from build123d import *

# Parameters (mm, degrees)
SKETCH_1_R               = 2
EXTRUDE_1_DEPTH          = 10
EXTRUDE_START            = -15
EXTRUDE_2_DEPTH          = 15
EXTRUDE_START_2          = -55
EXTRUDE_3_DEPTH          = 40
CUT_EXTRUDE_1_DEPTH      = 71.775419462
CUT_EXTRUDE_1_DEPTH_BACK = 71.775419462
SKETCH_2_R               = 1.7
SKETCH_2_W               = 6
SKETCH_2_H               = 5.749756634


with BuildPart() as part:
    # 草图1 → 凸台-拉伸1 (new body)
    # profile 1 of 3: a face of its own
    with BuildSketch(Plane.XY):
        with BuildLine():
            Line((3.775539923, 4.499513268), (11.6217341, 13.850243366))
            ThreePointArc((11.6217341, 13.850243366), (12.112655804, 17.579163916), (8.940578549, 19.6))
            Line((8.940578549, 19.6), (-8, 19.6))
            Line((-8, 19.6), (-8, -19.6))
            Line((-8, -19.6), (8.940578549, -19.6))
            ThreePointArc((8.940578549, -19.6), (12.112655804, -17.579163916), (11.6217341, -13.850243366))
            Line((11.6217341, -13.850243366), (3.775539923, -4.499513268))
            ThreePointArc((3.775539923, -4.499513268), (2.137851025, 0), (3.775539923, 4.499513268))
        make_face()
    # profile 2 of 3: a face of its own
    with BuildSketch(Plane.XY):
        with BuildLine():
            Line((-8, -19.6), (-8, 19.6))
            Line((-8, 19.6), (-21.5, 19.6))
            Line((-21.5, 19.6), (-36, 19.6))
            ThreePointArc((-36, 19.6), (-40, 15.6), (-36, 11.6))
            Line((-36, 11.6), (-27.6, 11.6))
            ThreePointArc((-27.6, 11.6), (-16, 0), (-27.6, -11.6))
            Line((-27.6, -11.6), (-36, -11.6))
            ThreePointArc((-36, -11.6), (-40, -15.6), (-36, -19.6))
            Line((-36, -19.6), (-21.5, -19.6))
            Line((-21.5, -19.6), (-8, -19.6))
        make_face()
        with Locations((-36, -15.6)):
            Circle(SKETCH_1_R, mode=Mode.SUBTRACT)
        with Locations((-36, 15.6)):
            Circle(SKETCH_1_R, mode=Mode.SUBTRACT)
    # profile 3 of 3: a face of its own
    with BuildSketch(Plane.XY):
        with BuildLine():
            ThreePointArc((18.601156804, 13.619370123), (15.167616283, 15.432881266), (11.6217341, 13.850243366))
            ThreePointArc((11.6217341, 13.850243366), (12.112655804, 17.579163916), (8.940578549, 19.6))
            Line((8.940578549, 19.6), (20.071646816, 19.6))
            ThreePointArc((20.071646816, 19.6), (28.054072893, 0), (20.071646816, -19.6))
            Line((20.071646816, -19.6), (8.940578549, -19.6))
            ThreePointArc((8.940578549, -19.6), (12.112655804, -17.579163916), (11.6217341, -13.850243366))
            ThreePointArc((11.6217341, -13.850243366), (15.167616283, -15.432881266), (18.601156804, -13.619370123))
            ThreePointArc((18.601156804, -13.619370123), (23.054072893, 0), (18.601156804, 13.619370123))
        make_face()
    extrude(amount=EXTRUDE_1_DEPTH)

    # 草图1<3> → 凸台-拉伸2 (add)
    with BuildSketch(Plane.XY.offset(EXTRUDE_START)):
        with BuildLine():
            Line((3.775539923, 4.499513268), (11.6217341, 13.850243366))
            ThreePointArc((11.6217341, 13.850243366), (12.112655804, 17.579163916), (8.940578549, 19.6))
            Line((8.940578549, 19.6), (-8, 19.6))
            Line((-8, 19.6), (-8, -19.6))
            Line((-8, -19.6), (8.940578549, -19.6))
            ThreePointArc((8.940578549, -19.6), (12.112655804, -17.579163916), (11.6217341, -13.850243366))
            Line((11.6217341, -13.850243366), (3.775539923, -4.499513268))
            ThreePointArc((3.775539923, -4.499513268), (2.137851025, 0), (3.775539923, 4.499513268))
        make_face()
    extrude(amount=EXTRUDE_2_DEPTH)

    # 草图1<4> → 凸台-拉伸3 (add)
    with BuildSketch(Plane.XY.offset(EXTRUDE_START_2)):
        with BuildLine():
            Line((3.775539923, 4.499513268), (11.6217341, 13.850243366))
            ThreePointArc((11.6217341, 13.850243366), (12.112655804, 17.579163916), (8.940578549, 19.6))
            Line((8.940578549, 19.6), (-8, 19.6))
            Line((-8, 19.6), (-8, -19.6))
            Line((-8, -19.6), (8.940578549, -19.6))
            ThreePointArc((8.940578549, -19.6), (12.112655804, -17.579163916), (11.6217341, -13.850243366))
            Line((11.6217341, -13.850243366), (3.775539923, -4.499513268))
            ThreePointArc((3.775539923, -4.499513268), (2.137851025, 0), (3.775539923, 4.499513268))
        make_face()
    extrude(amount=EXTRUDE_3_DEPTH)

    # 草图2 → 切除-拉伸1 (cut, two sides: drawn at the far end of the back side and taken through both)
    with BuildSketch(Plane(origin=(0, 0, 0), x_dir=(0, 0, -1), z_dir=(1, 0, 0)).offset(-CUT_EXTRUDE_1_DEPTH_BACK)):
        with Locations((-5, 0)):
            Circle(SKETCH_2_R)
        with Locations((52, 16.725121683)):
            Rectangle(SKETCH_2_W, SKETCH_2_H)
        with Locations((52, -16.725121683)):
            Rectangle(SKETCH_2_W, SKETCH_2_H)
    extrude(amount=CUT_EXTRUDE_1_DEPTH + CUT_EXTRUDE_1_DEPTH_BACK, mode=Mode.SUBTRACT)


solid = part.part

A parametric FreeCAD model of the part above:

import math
import FreeCAD as App
import Part
import Sketcher

V = App.Vector
Q = App.Units.Quantity

doc = App.newDocument("Part")
body = doc.addObject("PartDesign::Body", "Body")

sketch1 = body.newObject("Sketcher::SketchObject", "Sketch")
sketch1.AttachmentSupport = (doc.getObject("XY_Plane"), [""])
sketch1.MapMode = "FlatFace"
sketch1.addGeometry(Part.ArcOfCircle(Part.Circle(V(-36, 15.6, 0), V(0, 0, 1), 4), math.radians(90), math.radians(270)), False)
sketch1.addGeometry(Part.LineSegment(V(-36, 11.6, 0), V(-27.6, 11.6, 0)), False)
sketch1.addGeometry(Part.ArcOfCircle(Part.Circle(V(-27.6, 0, 0), V(0, 0, 1), 11.6), math.radians(-90), math.radians(90)), False)
sketch1.addGeometry(Part.LineSegment(V(-27.6, -11.6, 0), V(-36, -11.6, 0)), False)
sketch1.addGeometry(Part.ArcOfCircle(Part.Circle(V(-36, -15.6, 0), V(0, 0, 1), 4), math.radians(90), math.radians(270)), False)
sketch1.addGeometry(Part.LineSegment(V(-36, -19.6, 0), V(20.1, -19.6, 0)), False)
sketch1.addGeometry(Part.ArcOfCircle(Part.Circle(V(0, 0, 0), V(0, 0, 1), 28.1), math.radians(-44), math.radians(44)), False)
sketch1.addGeometry(Part.LineSegment(V(20.1, 19.6, 0), V(-36, 19.6, 0)), False)
sketch1.addGeometry(Part.LineSegment(V(3.8, 4.5, 0), V(11.6, 13.9, 0)), False)
sketch1.addGeometry(Part.ArcOfCircle(Part.Circle(V(15, 11, 0), V(0, 0, 1), 4.4), math.radians(36), math.radians(140)), False)
sketch1.addGeometry(Part.ArcOfCircle(Part.Circle(V(0, 0, 0), V(0, 0, 1), 23.1), math.radians(-36), math.radians(36)), False)
sketch1.addGeometry(Part.ArcOfCircle(Part.Circle(V(15, -11, 0), V(0, 0, 1), 4.4), math.radians(-140), math.radians(-36)), False)
sketch1.addGeometry(Part.LineSegment(V(11.6, -13.9, 0), V(3.8, -4.5, 0)), False)
sketch1.addGeometry(Part.ArcOfCircle(Part.Circle(V(9.1, 0, 0), V(0, 0, 1), 7), math.radians(140), math.radians(220)), False)
sketch1.addGeometry(Part.Circle(V(-36, 15.6, 0), V(0, 0, 1), 2), False)
sketch1.addGeometry(Part.Circle(V(-36, -15.6, 0), V(0, 0, 1), 2), False)
sketch1.addConstraint(Sketcher.Constraint("Tangent", 0, 2, 1, 1))
sketch1.addConstraint(Sketcher.Constraint("Tangent", 1, 2, 2, 2))
sketch1.addConstraint(Sketcher.Constraint("Tangent", 2, 1, 3, 1))
sketch1.addConstraint(Sketcher.Constraint("Tangent", 3, 2, 4, 1))
sketch1.addConstraint(Sketcher.Constraint("Tangent", 4, 2, 5, 1))
sketch1.addConstraint(Sketcher.Constraint("Coincident", 5, 2, 6, 1))
sketch1.addConstraint(Sketcher.Constraint("Coincident", 6, 2, 7, 1))
sketch1.addConstraint(Sketcher.Constraint("Tangent", 7, 2, 0, 1))
sketch1.addConstraint(Sketcher.Constraint("Tangent", 8, 2, 9, 2))
sketch1.addConstraint(Sketcher.Constraint("Tangent", 9, 1, 10, 2))
sketch1.addConstraint(Sketcher.Constraint("Tangent", 10, 1, 11, 2))
sketch1.addConstraint(Sketcher.Constraint("Tangent", 11, 1, 12, 1))
sketch1.addConstraint(Sketcher.Constraint("Tangent", 12, 2, 13, 2))
sketch1.addConstraint(Sketcher.Constraint("Tangent", 13, 1, 8, 1))
sketch1.addConstraint(Sketcher.Constraint("Horizontal", 1))
sketch1.addConstraint(Sketcher.Constraint("Horizontal", 3))
sketch1.addConstraint(Sketcher.Constraint("Horizontal", 5))
sketch1.addConstraint(Sketcher.Constraint("Horizontal", 7))
sketch1.addConstraint(Sketcher.Constraint("Coincident", 6, 3, -1, 1))
sketch1.addConstraint(Sketcher.Constraint("Coincident", 10, 3, -1, 1))
sketch1.addConstraint(Sketcher.Constraint("Coincident", 14, 3, 0, 3))
sketch1.addConstraint(Sketcher.Constraint("Coincident", 15, 3, 4, 3))
sketch1.addConstraint(Sketcher.Constraint("Equal", 0, 4))
sketch1.addConstraint(Sketcher.Constraint("Equal", 9, 11))
sketch1.addConstraint(Sketcher.Constraint("Equal", 14, 15))
sketch1.addConstraint(Sketcher.Constraint("Symmetric", 0, 3, 4, 3, -1))
sketch1.addConstraint(Sketcher.Constraint("Symmetric", 8, 2, 11, 1, -1))
sketch1.addConstraint(Sketcher.Constraint("Diameter", 14, Q("4 mm")))
sketch1.addConstraint(Sketcher.Constraint("Radius", 0, Q("4 mm")))
sketch1.addConstraint(Sketcher.Constraint("Radius", 13, Q("7 mm")))
sketch1.addConstraint(Sketcher.Constraint("Radius", 2, Q("11.6 mm")))
sketch1.addConstraint(Sketcher.Constraint("Angle", 8, Q("50 deg")))
sketch1.addConstraint(Sketcher.Constraint("DistanceX", 1, 1, 1, 2, Q("8.4 mm")))
sketch1.addConstraint(Sketcher.Constraint("DistanceX", 0, 3, -1, 1, Q("36 mm")))
sketch1.addConstraint(Sketcher.Constraint("Radius", 6, Q("28.054073 mm")))
sketch1.addConstraint(Sketcher.Constraint("Radius", 9, Q("4.437314 mm")))
sketch1.addConstraint(Sketcher.Constraint("Radius", 10, Q("23.054073 mm")))
sketch1.addConstraint(Sketcher.Constraint("Distance", 8, Q("12.206511 mm")))
pad1 = body.newObject("PartDesign::Pad", "Pad")
pad1.Profile = sketch1
pad1.Length = 10

sketch2 = body.newObject("Sketcher::SketchObject", "Sketch001")
sketch2.AttachmentSupport = (doc.getObject("XY_Plane"), [""])
sketch2.MapMode = "FlatFace"
sketch2.AttachmentOffset = App.Placement(V(0, 0, -15), App.Rotation())
sketch2.addGeometry(Part.LineSegment(V(3.8, 4.5, 0), V(11.6, 13.9, 0)), False)
sketch2.addGeometry(Part.ArcOfCircle(Part.Circle(V(8.9, 16.1, 0), V(0, 0, 1), 3.5), math.radians(-40), math.radians(90)), False)
sketch2.addGeometry(Part.LineSegment(V(8.9, 19.6, 0), V(-8, 19.6, 0)), False)
sketch2.addGeometry(Part.LineSegment(V(-8, 19.6, 0), V(-8, -19.6, 0)), False)
sketch2.addGeometry(Part.LineSegment(V(-8, -19.6, 0), V(8.9, -19.6, 0)), False)
sketch2.addGeometry(Part.ArcOfCircle(Part.Circle(V(8.9, -16.1, 0), V(0, 0, 1), 3.5), math.radians(-90), math.radians(40)), False)
sketch2.addGeometry(Part.LineSegment(V(11.6, -13.9, 0), V(3.8, -4.5, 0)), False)
sketch2.addGeometry(Part.ArcOfCircle(Part.Circle(V(9.1, 0, 0), V(0, 0, 1), 7), math.radians(140), math.radians(220)), False)
sketch2.addConstraint(Sketcher.Constraint("Tangent", 0, 2, 1, 1))
sketch2.addConstraint(Sketcher.Constraint("Tangent", 1, 2, 2, 1))
sketch2.addConstraint(Sketcher.Constraint("Coincident", 2, 2, 3, 1))
sketch2.addConstraint(Sketcher.Constraint("Coincident", 3, 2, 4, 1))
sketch2.addConstraint(Sketcher.Constraint("Tangent", 4, 2, 5, 1))
sketch2.addConstraint(Sketcher.Constraint("Tangent", 5, 2, 6, 1))
sketch2.addConstraint(Sketcher.Constraint("Tangent", 6, 2, 7, 2))
sketch2.addConstraint(Sketcher.Constraint("Tangent", 7, 1, 0, 1))
sketch2.addConstraint(Sketcher.Constraint("Horizontal", 2))
sketch2.addConstraint(Sketcher.Constraint("Vertical", 3))
sketch2.addConstraint(Sketcher.Constraint("Horizontal", 4))
sketch2.addConstraint(Sketcher.Constraint("Equal", 1, 5))
sketch2.addConstraint(Sketcher.Constraint("Symmetric", 1, 3, 5, 3, -1))
sketch2.addConstraint(Sketcher.Constraint("PointOnObject", 7, 3, -1))
sketch2.addConstraint(Sketcher.Constraint("Radius", 7, Q("7 mm")))
sketch2.addConstraint(Sketcher.Constraint("Radius", 1, Q("3.5 mm")))
sketch2.addConstraint(Sketcher.Constraint("Angle", 0, Q("50 deg")))
sketch2.addConstraint(Sketcher.Constraint("DistanceY", 3, 2, 3, 1, Q("39.2 mm")))
sketch2.addConstraint(Sketcher.Constraint("DistanceX", 2, 2, -1, 1, Q("8 mm")))
sketch2.addConstraint(Sketcher.Constraint("DistanceX", 2, 2, 2, 1, Q("16.940579 mm")))
pad2 = body.newObject("PartDesign::Pad", "Pad001")
pad2.Profile = sketch2
pad2.Length = 15

sketch3 = body.newObject("Sketcher::SketchObject", "Sketch002")
sketch3.AttachmentSupport = (doc.getObject("XY_Plane"), [""])
sketch3.MapMode = "FlatFace"
sketch3.AttachmentOffset = App.Placement(V(0, 0, -55), App.Rotation())
sketch3.addGeometry(Part.LineSegment(V(3.8, 4.5, 0), V(11.6, 13.9, 0)), False)
sketch3.addGeometry(Part.ArcOfCircle(Part.Circle(V(8.9, 16.1, 0), V(0, 0, 1), 3.5), math.radians(-40), math.radians(90)), False)
sketch3.addGeometry(Part.LineSegment(V(8.9, 19.6, 0), V(-8, 19.6, 0)), False)
sketch3.addGeometry(Part.LineSegment(V(-8, 19.6, 0), V(-8, -19.6, 0)), False)
sketch3.addGeometry(Part.LineSegment(V(-8, -19.6, 0), V(8.9, -19.6, 0)), False)
sketch3.addGeometry(Part.ArcOfCircle(Part.Circle(V(8.9, -16.1, 0), V(0, 0, 1), 3.5), math.radians(-90), math.radians(40)), False)
sketch3.addGeometry(Part.LineSegment(V(11.6, -13.9, 0), V(3.8, -4.5, 0)), False)
sketch3.addGeometry(Part.ArcOfCircle(Part.Circle(V(9.1, 0, 0), V(0, 0, 1), 7), math.radians(140), math.radians(220)), False)
sketch3.addConstraint(Sketcher.Constraint("Tangent", 0, 2, 1, 1))
sketch3.addConstraint(Sketcher.Constraint("Tangent", 1, 2, 2, 1))
sketch3.addConstraint(Sketcher.Constraint("Coincident", 2, 2, 3, 1))
sketch3.addConstraint(Sketcher.Constraint("Coincident", 3, 2, 4, 1))
sketch3.addConstraint(Sketcher.Constraint("Tangent", 4, 2, 5, 1))
sketch3.addConstraint(Sketcher.Constraint("Tangent", 5, 2, 6, 1))
sketch3.addConstraint(Sketcher.Constraint("Tangent", 6, 2, 7, 2))
sketch3.addConstraint(Sketcher.Constraint("Tangent", 7, 1, 0, 1))
sketch3.addConstraint(Sketcher.Constraint("Horizontal", 2))
sketch3.addConstraint(Sketcher.Constraint("Vertical", 3))
sketch3.addConstraint(Sketcher.Constraint("Horizontal", 4))
sketch3.addConstraint(Sketcher.Constraint("Equal", 1, 5))
sketch3.addConstraint(Sketcher.Constraint("Symmetric", 1, 3, 5, 3, -1))
sketch3.addConstraint(Sketcher.Constraint("PointOnObject", 7, 3, -1))
sketch3.addConstraint(Sketcher.Constraint("Radius", 7, Q("7 mm")))
sketch3.addConstraint(Sketcher.Constraint("Radius", 1, Q("3.5 mm")))
sketch3.addConstraint(Sketcher.Constraint("Angle", 0, Q("50 deg")))
sketch3.addConstraint(Sketcher.Constraint("DistanceY", 3, 2, 3, 1, Q("39.2 mm")))
sketch3.addConstraint(Sketcher.Constraint("DistanceX", 2, 2, -1, 1, Q("8 mm")))
sketch3.addConstraint(Sketcher.Constraint("DistanceX", 2, 2, 2, 1, Q("16.940579 mm")))
pad3 = body.newObject("PartDesign::Pad", "Pad002")
pad3.Profile = sketch3
pad3.Length = 40

sketch4 = body.newObject("Sketcher::SketchObject", "Sketch003")
sketch4.AttachmentSupport = (doc.getObject("YZ_Plane"), [""])
sketch4.MapMode = "FlatFace"
sketch4.addGeometry(Part.Circle(V(0, 5, 0), V(0, 0, 1), 1.7), False)
sketch4.addGeometry(Part.LineSegment(V(19.6, -49, 0), V(13.9, -49, 0)), False)
sketch4.addGeometry(Part.LineSegment(V(13.9, -49, 0), V(13.9, -55, 0)), False)
sketch4.addGeometry(Part.LineSegment(V(13.9, -55, 0), V(19.6, -55, 0)), False)
sketch4.addGeometry(Part.LineSegment(V(19.6, -55, 0), V(19.6, -49, 0)), False)
sketch4.addGeometry(Part.LineSegment(V(-13.9, -49, 0), V(-19.6, -49, 0)), False)
sketch4.addGeometry(Part.LineSegment(V(-19.6, -49, 0), V(-19.6, -55, 0)), False)
sketch4.addGeometry(Part.LineSegment(V(-19.6, -55, 0), V(-13.9, -55, 0)), False)
sketch4.addGeometry(Part.LineSegment(V(-13.9, -55, 0), V(-13.9, -49, 0)), False)
sketch4.addConstraint(Sketcher.Constraint("Coincident", 1, 2, 2, 1))
sketch4.addConstraint(Sketcher.Constraint("Coincident", 2, 2, 3, 1))
sketch4.addConstraint(Sketcher.Constraint("Coincident", 3, 2, 4, 1))
sketch4.addConstraint(Sketcher.Constraint("Coincident", 4, 2, 1, 1))
sketch4.addConstraint(Sketcher.Constraint("Coincident", 5, 2, 6, 1))
sketch4.addConstraint(Sketcher.Constraint("Coincident", 6, 2, 7, 1))
sketch4.addConstraint(Sketcher.Constraint("Coincident", 7, 2, 8, 1))
sketch4.addConstraint(Sketcher.Constraint("Coincident", 8, 2, 5, 1))
sketch4.addConstraint(Sketcher.Constraint("Horizontal", 1))
sketch4.addConstraint(Sketcher.Constraint("Vertical", 2))
sketch4.addConstraint(Sketcher.Constraint("Horizontal", 3))
sketch4.addConstraint(Sketcher.Constraint("Vertical", 4))
sketch4.addConstraint(Sketcher.Constraint("Horizontal", 5))
sketch4.addConstraint(Sketcher.Constraint("Vertical", 6))
sketch4.addConstraint(Sketcher.Constraint("Horizontal", 7))
sketch4.addConstraint(Sketcher.Constraint("Vertical", 8))
sketch4.addConstraint(Sketcher.Constraint("Symmetric", 4, 2, 5, 2, -2))
sketch4.addConstraint(Sketcher.Constraint("Symmetric", 2, 2, 7, 2, -2))
sketch4.addConstraint(Sketcher.Constraint("PointOnObject", 0, 3, -2))
sketch4.addConstraint(Sketcher.Constraint("Diameter", 0, Q("3.4 mm")))
sketch4.addConstraint(Sketcher.Constraint("DistanceY", 2, 2, 2, 1, Q("6 mm")))
sketch4.addConstraint(Sketcher.Constraint("DistanceY", -1, 1, 0, 3, Q("5 mm")))
sketch4.addConstraint(Sketcher.Constraint("DistanceY", 1, 2, -1, 1, Q("49 mm")))
sketch4.addConstraint(Sketcher.Constraint("DistanceX", -1, 1, 3, 2, Q("19.6 mm")))
sketch4.addConstraint(Sketcher.Constraint("DistanceX", 1, 2, 1, 1, Q("5.749757 mm")))
pocket1 = body.newObject("PartDesign::Pocket", "Pocket")
pocket1.Profile = sketch4
pocket1.Type = "ThroughAll"
pocket1.Midplane = True

doc.recompute()
